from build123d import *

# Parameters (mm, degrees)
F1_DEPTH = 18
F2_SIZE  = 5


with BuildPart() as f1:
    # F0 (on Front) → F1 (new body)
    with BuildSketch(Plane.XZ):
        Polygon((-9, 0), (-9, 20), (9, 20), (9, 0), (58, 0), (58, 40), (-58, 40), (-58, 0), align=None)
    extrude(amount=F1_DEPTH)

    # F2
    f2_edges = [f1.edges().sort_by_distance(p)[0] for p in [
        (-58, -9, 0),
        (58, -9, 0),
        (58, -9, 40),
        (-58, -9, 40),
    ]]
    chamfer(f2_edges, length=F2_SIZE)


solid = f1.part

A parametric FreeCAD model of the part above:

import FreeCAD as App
import Part
import Sketcher
from FreeCAD import Vector


def edges_at(feature, points):
    """Names of the edges that pass closest to the given points."""
    edges = feature.Shape.Edges
    near = lambda p: min(range(len(edges)), key=lambda i: edges[i].distToShape(Part.Vertex(*p))[0])
    return sorted({f"Edge{near(p) + 1}" for p in points})


def add_polygon(sketch, points):
    """Adds a closed chain of lines whose ends are joined by coincident constraints."""
    first, n = sketch.GeometryCount, len(points)
    for a, b in zip(points, points[1:] + points[:1]):
        sketch.addGeometry(Part.LineSegment(App.Vector(*a, 0), App.Vector(*b, 0)), False)
    for i in range(n):
        sketch.addConstraint(Sketcher.Constraint("Coincident", first + i, 2, first + (i + 1) % n, 1))

doc = App.newDocument("Part")
params = doc.addObject("Spreadsheet::Sheet", "Params")
for row, (alias, value) in enumerate([
    ("sketch1_width", "18 mm"),
    ("sketch1_width2", "49 mm"),
    ("sketch1_height", "20 mm"),
    ("sketch1_height2", "40 mm"),
    ("pad1_length", "18 mm"),
    ("chamfer_size", "5 mm"),
], start=1):
    params.set(f"A{row}", alias)
    params.set(f"B{row}", "=" + value)
    params.setAlias(f"B{row}", alias)

body = doc.addObject("PartDesign::Body", "Body")

# Sketch on XZ plane
sketch1 = body.newObject("Sketcher::SketchObject", "Sketch")
sketch1.AttachmentSupport = (doc.getObject("XZ_Plane"), [""])
sketch1.MapMode = "FlatFace"
add_polygon(sketch1, [(-9, 0), (-9, 20), (9, 20), (9, 0), (58, 0), (58, 40), (-58, 40), (-58, 0)])  # lines 0-7
sketch1.addConstraint([
    Sketcher.Constraint("Vertical", 0),
    Sketcher.Constraint("Horizontal", 1),
    Sketcher.Constraint("Vertical", 2),
    Sketcher.Constraint("Horizontal", 3),
    Sketcher.Constraint("Vertical", 4),
    Sketcher.Constraint("Horizontal", 5),
    Sketcher.Constraint("Vertical", 6),
    Sketcher.Constraint("Horizontal", 7),
    Sketcher.Constraint("Symmetric", 3, 2, 6, 2, -1, 1),
    Sketcher.Constraint("Symmetric", 2, 2, 7, 2, -2),
    Sketcher.Constraint("DistanceX", 1, 1, 1, 2, 18.0),
    Sketcher.Constraint("DistanceX", 3, 1, 3, 2, 49.0),
    Sketcher.Constraint("DistanceY", 0, 1, 0, 2, 20.0),
    Sketcher.Constraint("DistanceY", 4, 1, 4, 2, 40.0),
])
sketch1.setExpression("Constraints[18]", "Params.sketch1_width")
sketch1.setExpression("Constraints[19]", "Params.sketch1_width2")
sketch1.setExpression("Constraints[20]", "Params.sketch1_height")
sketch1.setExpression("Constraints[21]", "Params.sketch1_height2")
pad1 = body.newObject("PartDesign::Pad", "Pad")
pad1.Profile = sketch1
pad1.setExpression("Length", "Params.pad1_length")
doc.recompute()

chamfer = body.newObject("PartDesign::Chamfer", "Chamfer")
chamfer.Base = (pad1, edges_at(pad1, [
    (-58, -9, 0),
    (58, -9, 0),
    (58, -9, 40),
    (-58, -9, 40),
]))
chamfer.setExpression("Size", "Params.chamfer_size")

doc.recompute()
